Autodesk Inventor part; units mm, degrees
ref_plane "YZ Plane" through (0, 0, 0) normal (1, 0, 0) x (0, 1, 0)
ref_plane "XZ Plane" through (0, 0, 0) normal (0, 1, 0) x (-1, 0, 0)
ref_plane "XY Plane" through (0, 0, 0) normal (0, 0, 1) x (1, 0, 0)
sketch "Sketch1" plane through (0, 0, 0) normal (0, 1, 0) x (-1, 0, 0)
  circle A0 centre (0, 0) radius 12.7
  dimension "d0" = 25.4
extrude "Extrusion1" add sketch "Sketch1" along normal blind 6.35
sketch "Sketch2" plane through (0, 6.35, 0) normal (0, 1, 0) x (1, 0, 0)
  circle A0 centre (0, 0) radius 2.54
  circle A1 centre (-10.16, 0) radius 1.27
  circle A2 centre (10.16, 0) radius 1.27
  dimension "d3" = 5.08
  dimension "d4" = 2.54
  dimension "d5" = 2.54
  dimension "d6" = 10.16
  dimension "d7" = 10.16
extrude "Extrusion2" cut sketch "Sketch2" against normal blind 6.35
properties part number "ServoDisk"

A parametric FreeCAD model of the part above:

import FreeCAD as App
import Part
import Sketcher

V = App.Vector
Q = App.Units.Quantity

doc = App.newDocument("Part")
body = doc.addObject("PartDesign::Body", "Body")

sketch1 = body.newObject("Sketcher::SketchObject", "Sketch")
sketch1.AttachmentSupport = (doc.getObject("XZ_Plane"), [""])
sketch1.MapMode = "FlatFace"
sketch1.addGeometry(Part.Circle(V(0, 0, 0), V(0, 0, 1), 13), False)
sketch1.addConstraint([
    Sketcher.Constraint("Coincident", 0, 3, -1, 1),
    Sketcher.Constraint("Diameter", 0, Q("1 in")),
])
pad1 = body.newObject("PartDesign::Pad", "Pad")
pad1.Profile = sketch1
pad1.Length = Q("0.25 in")
pad1.Reversed = True

sketch2 = body.newObject("Sketcher::SketchObject", "Sketch001")
sketch2.AttachmentSupport = (doc.getObject("XZ_Plane"), [""])
sketch2.MapMode = "FlatFace"
sketch2.AttachmentOffset = App.Placement(V(0, 0, -0.25 * 25.4), App.Rotation())
sketch2.addGeometry([
    Part.Circle(V(0, 0, 0), V(0, 0, 1), 2.5),
    Part.Circle(V(-10.2, 0, 0), V(0, 0, 1), 1.3),
    Part.Circle(V(10.2, 0, 0), V(0, 0, 1), 1.3),
], False)
sketch2.addConstraint([
    Sketcher.Constraint("Coincident", 0, 3, -1, 1),
    Sketcher.Constraint("Equal", 1, 2),
    Sketcher.Constraint("Symmetric", 1, 3, 2, 3, -1, 1),
    Sketcher.Constraint("PointOnObject", 1, 3, -1),
    Sketcher.Constraint("Diameter", 0, Q("0.2 in")),
    Sketcher.Constraint("Diameter", 1, Q("0.1 in")),
    Sketcher.Constraint("DistanceX", 1, 3, -1, 1, Q("0.4 in")),
])
pocket1 = body.newObject("PartDesign::Pocket", "Pocket")
pocket1.Profile = sketch2
pocket1.Length = Q("0.25 in")
pocket1.Reversed = True

doc.recompute()
